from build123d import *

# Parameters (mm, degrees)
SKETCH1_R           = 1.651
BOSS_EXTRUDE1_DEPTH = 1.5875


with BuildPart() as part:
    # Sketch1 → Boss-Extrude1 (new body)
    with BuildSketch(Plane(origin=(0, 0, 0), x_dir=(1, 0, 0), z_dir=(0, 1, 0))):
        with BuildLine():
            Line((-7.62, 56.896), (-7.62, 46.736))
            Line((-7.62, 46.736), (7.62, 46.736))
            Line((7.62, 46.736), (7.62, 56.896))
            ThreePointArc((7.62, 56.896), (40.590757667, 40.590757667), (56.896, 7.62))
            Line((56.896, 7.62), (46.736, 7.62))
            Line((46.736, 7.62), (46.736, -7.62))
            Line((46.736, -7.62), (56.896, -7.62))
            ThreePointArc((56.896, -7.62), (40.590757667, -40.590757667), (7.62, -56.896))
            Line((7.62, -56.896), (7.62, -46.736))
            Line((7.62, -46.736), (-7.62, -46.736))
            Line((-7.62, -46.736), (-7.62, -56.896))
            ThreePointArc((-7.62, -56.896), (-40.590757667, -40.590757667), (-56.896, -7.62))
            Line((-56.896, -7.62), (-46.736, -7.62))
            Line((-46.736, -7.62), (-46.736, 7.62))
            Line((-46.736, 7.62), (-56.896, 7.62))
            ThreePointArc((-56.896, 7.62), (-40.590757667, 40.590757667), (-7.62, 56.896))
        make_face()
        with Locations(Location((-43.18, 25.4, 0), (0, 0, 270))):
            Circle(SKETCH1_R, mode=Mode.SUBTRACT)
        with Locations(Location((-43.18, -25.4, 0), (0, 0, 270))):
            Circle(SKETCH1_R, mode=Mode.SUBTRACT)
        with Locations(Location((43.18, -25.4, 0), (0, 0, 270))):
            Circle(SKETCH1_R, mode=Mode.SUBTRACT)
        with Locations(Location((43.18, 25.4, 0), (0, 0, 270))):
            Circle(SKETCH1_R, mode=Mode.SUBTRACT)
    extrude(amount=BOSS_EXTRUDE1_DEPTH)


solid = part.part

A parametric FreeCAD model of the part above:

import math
import FreeCAD as App
import Part
import Sketcher
Q = App.Units.Quantity

doc = App.newDocument("Part")
params = doc.addObject("Spreadsheet::Sheet", "Params")
for row, (alias, value) in enumerate([
    ("sketch1_diameter", "0.13 in"),
    ("sketch1_radius", "2.26 in"),
    ("sketch1_width", "0.4 in"),
    ("sketch1_width2", "0.6 in"),
    ("pad1_length", "0.0625 in"),
], start=1):
    params.set(f"A{row}", alias)
    params.set(f"B{row}", "=" + value)
    params.setAlias(f"B{row}", alias)

body = doc.addObject("PartDesign::Body", "Body")

# Sketch on XZ plane
sketch1 = doc.addObject("Sketcher::SketchObject", "Sketch")
body.addObject(sketch1)
sketch1.AttachmentSupport = (doc.XZ_Plane, [""])
sketch1.MapMode = "FlatFace"
sketch1.addGeometry(Part.LineSegment(App.Vector(-7.6, -46.7, 0), App.Vector(-7.6, -56.9, 0)), False)
sketch1.addGeometry(Part.ArcOfCircle(Part.Circle(App.Vector(0, 0, 0), App.Vector(0, 0, 1), 57.4), math.radians(-172), math.radians(-98)), False)
sketch1.addGeometry(Part.LineSegment(App.Vector(-56.9, -7.6, 0), App.Vector(-46.7, -7.6, 0)), False)
sketch1.addGeometry(Part.LineSegment(App.Vector(-46.7, -7.6, 0), App.Vector(-46.7, 7.6, 0)), False)
sketch1.addGeometry(Part.LineSegment(App.Vector(-46.7, 7.6, 0), App.Vector(-56.9, 7.6, 0)), False)
sketch1.addGeometry(Part.ArcOfCircle(Part.Circle(App.Vector(0, 0, 0), App.Vector(0, 0, 1), 57.4), math.radians(98), math.radians(172)), False)
sketch1.addGeometry(Part.LineSegment(App.Vector(-7.6, 56.9, 0), App.Vector(-7.6, 46.7, 0)), False)
sketch1.addGeometry(Part.LineSegment(App.Vector(-7.6, 46.7, 0), App.Vector(7.6, 46.7, 0)), False)
sketch1.addGeometry(Part.LineSegment(App.Vector(7.6, 46.7, 0), App.Vector(7.6, 56.9, 0)), False)
sketch1.addGeometry(Part.ArcOfCircle(Part.Circle(App.Vector(0, 0, 0), App.Vector(0, 0, 1), 57.4), math.radians(8), math.radians(82)), False)
sketch1.addGeometry(Part.LineSegment(App.Vector(56.9, 7.6, 0), App.Vector(46.7, 7.6, 0)), False)
sketch1.addGeometry(Part.LineSegment(App.Vector(46.7, 7.6, 0), App.Vector(46.7, -7.6, 0)), False)
sketch1.addGeometry(Part.LineSegment(App.Vector(46.7, -7.6, 0), App.Vector(56.9, -7.6, 0)), False)
sketch1.addGeometry(Part.ArcOfCircle(Part.Circle(App.Vector(0, 0, 0), App.Vector(0, 0, 1), 57.4), math.radians(-82), math.radians(-8)), False)
sketch1.addGeometry(Part.LineSegment(App.Vector(7.6, -56.9, 0), App.Vector(7.6, -46.7, 0)), False)
sketch1.addGeometry(Part.LineSegment(App.Vector(7.6, -46.7, 0), App.Vector(-7.6, -46.7, 0)), False)
sketch1.addGeometry(Part.Circle(App.Vector(43.2, 25.4, 0), App.Vector(0, 0, 1), 1.7), False)
sketch1.addGeometry(Part.Circle(App.Vector(-43.2, 25.4, 0), App.Vector(0, 0, 1), 1.7), False)
sketch1.addGeometry(Part.Circle(App.Vector(43.2, -25.4, 0), App.Vector(0, 0, 1), 1.7), False)
sketch1.addGeometry(Part.Circle(App.Vector(-43.2, -25.4, 0), App.Vector(0, 0, 1), 1.7), False)
sketch1.addConstraint(Sketcher.Constraint("Coincident", 0, 2, 1, 2))
sketch1.addConstraint(Sketcher.Constraint("Coincident", 1, 1, 2, 1))
sketch1.addConstraint(Sketcher.Constraint("Coincident", 2, 2, 3, 1))
sketch1.addConstraint(Sketcher.Constraint("Coincident", 3, 2, 4, 1))
sketch1.addConstraint(Sketcher.Constraint("Coincident", 4, 2, 5, 2))
sketch1.addConstraint(Sketcher.Constraint("Coincident", 5, 1, 6, 1))
sketch1.addConstraint(Sketcher.Constraint("Coincident", 6, 2, 7, 1))
sketch1.addConstraint(Sketcher.Constraint("Coincident", 7, 2, 8, 1))
sketch1.addConstraint(Sketcher.Constraint("Coincident", 8, 2, 9, 2))
sketch1.addConstraint(Sketcher.Constraint("Coincident", 9, 1, 10, 1))
sketch1.addConstraint(Sketcher.Constraint("Coincident", 10, 2, 11, 1))
sketch1.addConstraint(Sketcher.Constraint("Coincident", 11, 2, 12, 1))
sketch1.addConstraint(Sketcher.Constraint("Coincident", 12, 2, 13, 2))
sketch1.addConstraint(Sketcher.Constraint("Coincident", 13, 1, 14, 1))
sketch1.addConstraint(Sketcher.Constraint("Coincident", 14, 2, 15, 1))
sketch1.addConstraint(Sketcher.Constraint("Coincident", 15, 2, 0, 1))
sketch1.addConstraint(Sketcher.Constraint("Vertical", 0))
sketch1.addConstraint(Sketcher.Constraint("Horizontal", 2))
sketch1.addConstraint(Sketcher.Constraint("Vertical", 3))
sketch1.addConstraint(Sketcher.Constraint("Horizontal", 4))
sketch1.addConstraint(Sketcher.Constraint("Vertical", 6))
sketch1.addConstraint(Sketcher.Constraint("Horizontal", 7))
sketch1.addConstraint(Sketcher.Constraint("Vertical", 8))
sketch1.addConstraint(Sketcher.Constraint("Horizontal", 10))
sketch1.addConstraint(Sketcher.Constraint("Vertical", 11))
sketch1.addConstraint(Sketcher.Constraint("Horizontal", 12))
sketch1.addConstraint(Sketcher.Constraint("Vertical", 14))
sketch1.addConstraint(Sketcher.Constraint("Horizontal", 15))
sketch1.addConstraint(Sketcher.Constraint("Coincident", 1, 3, -1, 1))
sketch1.addConstraint(Sketcher.Constraint("Coincident", 5, 3, -1, 1))
sketch1.addConstraint(Sketcher.Constraint("Coincident", 9, 3, -1, 1))
sketch1.addConstraint(Sketcher.Constraint("Coincident", 13, 3, -1, 1))
sketch1.addConstraint(Sketcher.Constraint("Equal", 1, 5))
sketch1.addConstraint(Sketcher.Constraint("Equal", 5, 9))
sketch1.addConstraint(Sketcher.Constraint("Equal", 9, 13))
sketch1.addConstraint(Sketcher.Constraint("Equal", 16, 17))
sketch1.addConstraint(Sketcher.Constraint("Equal", 17, 18))
sketch1.addConstraint(Sketcher.Constraint("Equal", 18, 19))
sketch1.addConstraint(Sketcher.Constraint("Symmetric", 17, 3, 18, 3, -1, 1))
sketch1.addConstraint(Sketcher.Constraint("Symmetric", 16, 3, 19, 3, -1, 1))
sketch1.addConstraint(Sketcher.Constraint("Symmetric", 2, 2, 10, 2, -1, 1))
sketch1.addConstraint(Sketcher.Constraint("Symmetric", 6, 2, 14, 2, -1, 1))
sketch1.addConstraint(Sketcher.Constraint("Symmetric", 16, 3, 17, 3, -2))
sketch1.addConstraint(Sketcher.Constraint("Horizontal", 5, 1, 8, 2))
sketch1.addConstraint(Sketcher.Constraint("Horizontal", 4, 2, 9, 1))
sketch1.addConstraint(Sketcher.Constraint("Horizontal", 2, 2, 11, 2))
sketch1.addConstraint(Sketcher.Constraint("Horizontal", 0, 2, 13, 1))
sketch1.addConstraint(Sketcher.Constraint("Equal", 12, 0))
sketch1.addConstraint(Sketcher.Constraint("Equal", 15, 3))
sketch1.addConstraint(Sketcher.Constraint("Diameter", 16, Q("0.13 in")))
sketch1.addConstraint(Sketcher.Constraint("Radius", 1, Q("2.26 in")))
sketch1.addConstraint(Sketcher.Constraint("DistanceX", 2, 1, 2, 2, Q("0.4 in")))
sketch1.addConstraint(Sketcher.Constraint("DistanceX", 7, 1, 7, 2, Q("0.6 in")))
sketch1.addConstraint(Sketcher.Constraint("DistanceY", -1, 1, 16, 3, Q("1 in")))
sketch1.addConstraint(Sketcher.Constraint("DistanceX", -1, 1, 16, 3, Q("1.7 in")))
sketch1.setExpression("Constraints[49]", "Params.sketch1_diameter")
sketch1.setExpression("Constraints[50]", "Params.sketch1_radius")
sketch1.setExpression("Constraints[51]", "Params.sketch1_width")
sketch1.setExpression("Constraints[52]", "Params.sketch1_width2")
pad1 = doc.addObject("PartDesign::Pad", "Pad")
body.addObject(pad1)
pad1.Profile = sketch1
pad1.setExpression("Length", "Params.pad1_length")
pad1.Reversed = True

doc.recompute()
